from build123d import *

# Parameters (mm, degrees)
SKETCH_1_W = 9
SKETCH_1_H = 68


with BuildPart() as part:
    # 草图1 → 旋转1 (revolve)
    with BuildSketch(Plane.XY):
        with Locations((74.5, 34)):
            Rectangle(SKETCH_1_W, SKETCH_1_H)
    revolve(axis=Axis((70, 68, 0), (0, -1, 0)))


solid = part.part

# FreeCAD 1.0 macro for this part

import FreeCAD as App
import Part
import Sketcher

V = App.Vector

doc = App.newDocument("Part")
body = doc.addObject("PartDesign::Body", "Body")

# Sketch on XY plane
sketch1 = body.newObject("Sketcher::SketchObject", "Sketch")
sketch1.AttachmentSupport = (doc.getObject("XY_Plane"), [""])
sketch1.MapMode = "FlatFace"
sketch1.addGeometry([
    Part.LineSegment(V(70, 68, 0), V(70, 0, 0)),
    Part.LineSegment(V(70, 0, 0), V(79, 0, 0)),
    Part.LineSegment(V(79, 0, 0), V(79, 68, 0)),
    Part.LineSegment(V(79, 68, 0), V(70, 68, 0)),
], False)
sketch1.addGeometry(Part.LineSegment(V(70, 68, 0), V(70, 0, 0)), True)  # axis
sketch1.addConstraint([
    Sketcher.Constraint("Coincident", 0, 2, 1, 1),
    Sketcher.Constraint("Coincident", 1, 2, 2, 1),
    Sketcher.Constraint("Coincident", 2, 2, 3, 1),
    Sketcher.Constraint("Coincident", 3, 2, 0, 1),
    Sketcher.Constraint("Vertical", 0),
    Sketcher.Constraint("Horizontal", 1),
    Sketcher.Constraint("Vertical", 2),
    Sketcher.Constraint("Horizontal", 3),
    Sketcher.Constraint("Vertical", 4),
    Sketcher.Constraint("Coincident", 4, 1, 3, 2),
    Sketcher.Constraint("PointOnObject", 0, 2, -1),
    Sketcher.Constraint("PointOnObject", 4, 2, -1),
    Sketcher.Constraint("DistanceX", 1, 1, 1, 2, 9.0),
    Sketcher.Constraint("DistanceY", 0, 2, 0, 1, 68.0),
    Sketcher.Constraint("DistanceX", -1, 1, 0, 2, 70.0),
])
revolution = body.newObject("PartDesign::Revolution", "Revolution")
revolution.Profile = sketch1
revolution.ReferenceAxis = (sketch1, ["Axis0"])
revolution.Angle = 360

doc.recompute()
